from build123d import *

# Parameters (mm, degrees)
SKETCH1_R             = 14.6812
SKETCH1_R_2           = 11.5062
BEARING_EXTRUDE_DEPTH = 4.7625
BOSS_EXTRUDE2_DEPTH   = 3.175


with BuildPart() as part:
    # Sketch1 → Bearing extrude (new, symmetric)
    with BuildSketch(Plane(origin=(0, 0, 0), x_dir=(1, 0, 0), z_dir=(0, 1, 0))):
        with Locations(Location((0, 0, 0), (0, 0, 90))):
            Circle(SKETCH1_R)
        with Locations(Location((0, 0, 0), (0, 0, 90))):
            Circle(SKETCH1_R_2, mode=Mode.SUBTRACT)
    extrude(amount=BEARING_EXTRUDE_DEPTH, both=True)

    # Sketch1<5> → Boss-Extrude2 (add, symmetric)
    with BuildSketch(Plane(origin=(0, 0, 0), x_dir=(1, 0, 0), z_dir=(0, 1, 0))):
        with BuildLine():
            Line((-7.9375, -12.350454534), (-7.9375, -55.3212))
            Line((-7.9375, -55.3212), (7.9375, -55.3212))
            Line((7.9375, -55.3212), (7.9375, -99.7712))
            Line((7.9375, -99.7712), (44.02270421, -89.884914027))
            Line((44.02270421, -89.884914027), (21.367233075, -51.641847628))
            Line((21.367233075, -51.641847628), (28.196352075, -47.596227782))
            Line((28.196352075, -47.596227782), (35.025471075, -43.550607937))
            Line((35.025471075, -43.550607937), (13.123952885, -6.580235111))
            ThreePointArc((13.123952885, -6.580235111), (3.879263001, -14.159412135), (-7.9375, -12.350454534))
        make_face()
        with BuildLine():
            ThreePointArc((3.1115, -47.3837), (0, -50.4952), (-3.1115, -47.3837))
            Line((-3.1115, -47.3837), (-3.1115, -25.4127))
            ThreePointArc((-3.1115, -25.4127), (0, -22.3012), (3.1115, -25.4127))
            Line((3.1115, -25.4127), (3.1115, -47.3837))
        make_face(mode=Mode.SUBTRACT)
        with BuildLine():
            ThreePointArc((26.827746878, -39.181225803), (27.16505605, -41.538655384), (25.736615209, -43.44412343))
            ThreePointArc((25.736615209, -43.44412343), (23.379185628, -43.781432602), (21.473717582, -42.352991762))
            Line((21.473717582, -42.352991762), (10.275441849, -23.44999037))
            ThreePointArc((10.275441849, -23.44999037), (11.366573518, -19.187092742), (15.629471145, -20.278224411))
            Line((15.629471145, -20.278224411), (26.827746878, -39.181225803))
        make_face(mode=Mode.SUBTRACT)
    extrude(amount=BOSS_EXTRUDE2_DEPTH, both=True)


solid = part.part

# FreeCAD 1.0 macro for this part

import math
import FreeCAD as App
import Part
import Sketcher

V = App.Vector
Q = App.Units.Quantity

doc = App.newDocument("Part")
body = doc.addObject("PartDesign::Body", "Body")

sketch1 = body.newObject("Sketcher::SketchObject", "Sketch")
sketch1.AttachmentSupport = (doc.getObject("XZ_Plane"), [""])
sketch1.MapMode = "FlatFace"
sketch1.addGeometry(Part.Circle(V(0, 0, 0), V(0, 0, 1), 15), False)
sketch1.addGeometry(Part.Circle(V(0, 0, 0), V(0, 0, 1), 12), False)
sketch1.addConstraint(Sketcher.Constraint("Coincident", 0, 3, -1, 1))
sketch1.addConstraint(Sketcher.Constraint("Coincident", 1, 3, -1, 1))
sketch1.addConstraint(Sketcher.Constraint("Diameter", 0, Q("1.156 in")))
sketch1.addConstraint(Sketcher.Constraint("Diameter", 1, Q("0.906 in")))
pad1 = body.newObject("PartDesign::Pad", "Pad")
pad1.Profile = sketch1
pad1.Length = Q("0.375 in")
pad1.Midplane = True

sketch2 = body.newObject("Sketcher::SketchObject", "Sketch001")
sketch2.AttachmentSupport = (doc.getObject("XZ_Plane"), [""])
sketch2.MapMode = "FlatFace"
sketch2.addGeometry(Part.LineSegment(V(-7.9, 12.4, 0), V(-7.9, 55.3, 0)), False)
sketch2.addGeometry(Part.LineSegment(V(-7.9, 55.3, 0), V(7.9, 55.3, 0)), False)
sketch2.addGeometry(Part.LineSegment(V(7.9, 55.3, 0), V(7.9, 99.8, 0)), False)
sketch2.addGeometry(Part.LineSegment(V(7.9, 99.8, 0), V(44, 89.9, 0)), False)
sketch2.addGeometry(Part.LineSegment(V(44, 89.9, 0), V(21.4, 51.6, 0)), False)
sketch2.addGeometry(Part.LineSegment(V(21.4, 51.6, 0), V(28.2, 47.6, 0)), False)
sketch2.addGeometry(Part.LineSegment(V(28.2, 47.6, 0), V(35, 43.6, 0)), False)
sketch2.addGeometry(Part.LineSegment(V(35, 43.6, 0), V(13.1, 6.6, 0)), False)
sketch2.addGeometry(Part.ArcOfCircle(Part.Circle(V(0, 0, 0), V(0, 0, 1), 14.7), math.radians(27), math.radians(123)), False)
sketch2.addGeometry(Part.LineSegment(V(3.1, 25.4, 0), V(3.1, 47.4, 0)), False)
sketch2.addGeometry(Part.ArcOfCircle(Part.Circle(V(0, 47.4, 0), V(0, 0, 1), 3.1), math.radians(0), math.radians(180)), False)
sketch2.addGeometry(Part.LineSegment(V(-3.1, 47.4, 0), V(-3.1, 25.4, 0)), False)
sketch2.addGeometry(Part.ArcOfCircle(Part.Circle(V(0, 25.4, 0), V(0, 0, 1), 3.1), math.radians(180), math.radians(360)), False)
sketch2.addGeometry(Part.LineSegment(V(15.6, 20.3, 0), V(26.8, 39.2, 0)), False)
sketch2.addGeometry(Part.ArcOfCircle(Part.Circle(V(24.2, 40.8, 0), V(0, 0, 1), 3.1), math.radians(-31), math.radians(59)), False)
sketch2.addGeometry(Part.ArcOfCircle(Part.Circle(V(24.2, 40.8, 0), V(0, 0, 1), 3.1), math.radians(59), math.radians(149)), False)
sketch2.addGeometry(Part.LineSegment(V(21.5, 42.4, 0), V(10.3, 23.4, 0)), False)
sketch2.addGeometry(Part.ArcOfCircle(Part.Circle(V(13, 21.9, 0), V(0, 0, 1), 3.1), math.radians(149), math.radians(329)), False)
sketch2.addConstraint(Sketcher.Constraint("Coincident", 0, 2, 1, 1))
sketch2.addConstraint(Sketcher.Constraint("Coincident", 1, 2, 2, 1))
sketch2.addConstraint(Sketcher.Constraint("Coincident", 2, 2, 3, 1))
sketch2.addConstraint(Sketcher.Constraint("Coincident", 3, 2, 4, 1))
sketch2.addConstraint(Sketcher.Constraint("Coincident", 4, 2, 5, 1))
sketch2.addConstraint(Sketcher.Constraint("Coincident", 5, 2, 6, 1))
sketch2.addConstraint(Sketcher.Constraint("Coincident", 6, 2, 7, 1))
sketch2.addConstraint(Sketcher.Constraint("Coincident", 7, 2, 8, 1))
sketch2.addConstraint(Sketcher.Constraint("Coincident", 8, 2, 0, 1))
sketch2.addConstraint(Sketcher.Constraint("Tangent", 9, 2, 10, 1))
sketch2.addConstraint(Sketcher.Constraint("Tangent", 10, 2, 11, 1))
sketch2.addConstraint(Sketcher.Constraint("Tangent", 11, 2, 12, 1))
sketch2.addConstraint(Sketcher.Constraint("Tangent", 12, 2, 9, 1))
sketch2.addConstraint(Sketcher.Constraint("Tangent", 13, 2, 14, 1))
sketch2.addConstraint(Sketcher.Constraint("Tangent", 14, 2, 15, 1))
sketch2.addConstraint(Sketcher.Constraint("Tangent", 15, 2, 16, 1))
sketch2.addConstraint(Sketcher.Constraint("Tangent", 16, 2, 17, 1))
sketch2.addConstraint(Sketcher.Constraint("Tangent", 17, 2, 13, 1))
sketch2.addConstraint(Sketcher.Constraint("Vertical", 0))
sketch2.addConstraint(Sketcher.Constraint("Horizontal", 1))
sketch2.addConstraint(Sketcher.Constraint("Vertical", 2))
sketch2.addConstraint(Sketcher.Constraint("Vertical", 9))
sketch2.addConstraint(Sketcher.Constraint("Vertical", 11))
sketch2.addConstraint(Sketcher.Constraint("Coincident", 8, 3, -1, 1))
sketch2.addConstraint(Sketcher.Constraint("Equal", 12, 14))
sketch2.addConstraint(Sketcher.Constraint("Equal", 14, 15))
sketch2.addConstraint(Sketcher.Constraint("Equal", 15, 17))
sketch2.addConstraint(Sketcher.Constraint("PointOnObject", 10, 3, -2))
sketch2.addConstraint(Sketcher.Constraint("Perpendicular", 4, 5))
sketch2.addConstraint(Sketcher.Constraint("Parallel", 5, 6))
sketch2.addConstraint(Sketcher.Constraint("Perpendicular", 6, 7))
sketch2.addConstraint(Sketcher.Constraint("Parallel", 7, 13))
sketch2.addConstraint(Sketcher.Constraint("Equal", 5, 6))
sketch2.addConstraint(Sketcher.Constraint("Radius", 8, Q("0.578 in")))
sketch2.addConstraint(Sketcher.Constraint("DistanceY", 2, 1, 2, 2, Q("1.75 in")))
sketch2.addConstraint(Sketcher.Constraint("Radius", 10, Q("0.1225 in")))
sketch2.addConstraint(Sketcher.Constraint("Distance", 4, Q("1.75 in")))
sketch2.addConstraint(Sketcher.Constraint("DistanceX", 1, 1, 1, 2, Q("0.625 in")))
sketch2.addConstraint(Sketcher.Constraint("DistanceY", 9, 1, 9, 2, Q("0.865 in")))
sketch2.addConstraint(Sketcher.Constraint("DistanceX", 9, 2, 1, 2, Q("0.19 in")))
sketch2.addConstraint(Sketcher.Constraint("Distance", 5, Q("0.3125 in")))
sketch2.addConstraint(Sketcher.Constraint("Distance", 13, Q("0.865 in")))
sketch2.addConstraint(Sketcher.Constraint("DistanceY", -1, 1, 0, 2, Q("2.178 in")))
sketch2.addConstraint(Sketcher.Constraint("DistanceY", 10, 3, 0, 2, Q("0.3125 in")))
sketch2.addConstraint(Sketcher.Constraint("DistanceY", 17, 3, 15, 3, 18.903001))
sketch2.addConstraint(Sketcher.Constraint("DistanceX", 4, 2, 15, 3, 2.783499))
sketch2.addConstraint(Sketcher.Constraint("DistanceY", 14, 3, 6, 2, 2.783499))
sketch2.addConstraint(Sketcher.Constraint("Distance", 3, 37.414978))
sketch2.addConstraint(Sketcher.Constraint("DistanceY", -1, 1, 14, 3, 40.767109))
sketch2.addConstraint(Sketcher.Constraint("DistanceX", 14, 2, 13, 2, 1.091132))
pad2 = body.newObject("PartDesign::Pad", "Pad001")
pad2.Profile = sketch2
pad2.Length = Q("0.25 in")
pad2.Midplane = True

doc.recompute()
